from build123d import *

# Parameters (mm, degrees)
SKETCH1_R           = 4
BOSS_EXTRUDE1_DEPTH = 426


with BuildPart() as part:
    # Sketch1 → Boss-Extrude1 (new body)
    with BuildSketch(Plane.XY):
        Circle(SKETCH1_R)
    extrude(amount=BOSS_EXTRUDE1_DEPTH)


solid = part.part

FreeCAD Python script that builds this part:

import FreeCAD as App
import Part
import Sketcher

V = App.Vector

doc = App.newDocument("Part")
body = doc.addObject("PartDesign::Body", "Body")

sketch1 = body.newObject("Sketcher::SketchObject", "Sketch")
sketch1.AttachmentSupport = (doc.getObject("XY_Plane"), [""])
sketch1.MapMode = "FlatFace"
sketch1.addGeometry(Part.Circle(V(0, 0, 0), V(0, 0, 1), 4), False)
sketch1.addConstraint([
    Sketcher.Constraint("Coincident", 0, 3, -1, 1),
    Sketcher.Constraint("Diameter", 0, 8.0),
])
pad1 = body.newObject("PartDesign::Pad", "Pad")
pad1.Profile = sketch1
pad1.Length = 426

doc.recompute()
